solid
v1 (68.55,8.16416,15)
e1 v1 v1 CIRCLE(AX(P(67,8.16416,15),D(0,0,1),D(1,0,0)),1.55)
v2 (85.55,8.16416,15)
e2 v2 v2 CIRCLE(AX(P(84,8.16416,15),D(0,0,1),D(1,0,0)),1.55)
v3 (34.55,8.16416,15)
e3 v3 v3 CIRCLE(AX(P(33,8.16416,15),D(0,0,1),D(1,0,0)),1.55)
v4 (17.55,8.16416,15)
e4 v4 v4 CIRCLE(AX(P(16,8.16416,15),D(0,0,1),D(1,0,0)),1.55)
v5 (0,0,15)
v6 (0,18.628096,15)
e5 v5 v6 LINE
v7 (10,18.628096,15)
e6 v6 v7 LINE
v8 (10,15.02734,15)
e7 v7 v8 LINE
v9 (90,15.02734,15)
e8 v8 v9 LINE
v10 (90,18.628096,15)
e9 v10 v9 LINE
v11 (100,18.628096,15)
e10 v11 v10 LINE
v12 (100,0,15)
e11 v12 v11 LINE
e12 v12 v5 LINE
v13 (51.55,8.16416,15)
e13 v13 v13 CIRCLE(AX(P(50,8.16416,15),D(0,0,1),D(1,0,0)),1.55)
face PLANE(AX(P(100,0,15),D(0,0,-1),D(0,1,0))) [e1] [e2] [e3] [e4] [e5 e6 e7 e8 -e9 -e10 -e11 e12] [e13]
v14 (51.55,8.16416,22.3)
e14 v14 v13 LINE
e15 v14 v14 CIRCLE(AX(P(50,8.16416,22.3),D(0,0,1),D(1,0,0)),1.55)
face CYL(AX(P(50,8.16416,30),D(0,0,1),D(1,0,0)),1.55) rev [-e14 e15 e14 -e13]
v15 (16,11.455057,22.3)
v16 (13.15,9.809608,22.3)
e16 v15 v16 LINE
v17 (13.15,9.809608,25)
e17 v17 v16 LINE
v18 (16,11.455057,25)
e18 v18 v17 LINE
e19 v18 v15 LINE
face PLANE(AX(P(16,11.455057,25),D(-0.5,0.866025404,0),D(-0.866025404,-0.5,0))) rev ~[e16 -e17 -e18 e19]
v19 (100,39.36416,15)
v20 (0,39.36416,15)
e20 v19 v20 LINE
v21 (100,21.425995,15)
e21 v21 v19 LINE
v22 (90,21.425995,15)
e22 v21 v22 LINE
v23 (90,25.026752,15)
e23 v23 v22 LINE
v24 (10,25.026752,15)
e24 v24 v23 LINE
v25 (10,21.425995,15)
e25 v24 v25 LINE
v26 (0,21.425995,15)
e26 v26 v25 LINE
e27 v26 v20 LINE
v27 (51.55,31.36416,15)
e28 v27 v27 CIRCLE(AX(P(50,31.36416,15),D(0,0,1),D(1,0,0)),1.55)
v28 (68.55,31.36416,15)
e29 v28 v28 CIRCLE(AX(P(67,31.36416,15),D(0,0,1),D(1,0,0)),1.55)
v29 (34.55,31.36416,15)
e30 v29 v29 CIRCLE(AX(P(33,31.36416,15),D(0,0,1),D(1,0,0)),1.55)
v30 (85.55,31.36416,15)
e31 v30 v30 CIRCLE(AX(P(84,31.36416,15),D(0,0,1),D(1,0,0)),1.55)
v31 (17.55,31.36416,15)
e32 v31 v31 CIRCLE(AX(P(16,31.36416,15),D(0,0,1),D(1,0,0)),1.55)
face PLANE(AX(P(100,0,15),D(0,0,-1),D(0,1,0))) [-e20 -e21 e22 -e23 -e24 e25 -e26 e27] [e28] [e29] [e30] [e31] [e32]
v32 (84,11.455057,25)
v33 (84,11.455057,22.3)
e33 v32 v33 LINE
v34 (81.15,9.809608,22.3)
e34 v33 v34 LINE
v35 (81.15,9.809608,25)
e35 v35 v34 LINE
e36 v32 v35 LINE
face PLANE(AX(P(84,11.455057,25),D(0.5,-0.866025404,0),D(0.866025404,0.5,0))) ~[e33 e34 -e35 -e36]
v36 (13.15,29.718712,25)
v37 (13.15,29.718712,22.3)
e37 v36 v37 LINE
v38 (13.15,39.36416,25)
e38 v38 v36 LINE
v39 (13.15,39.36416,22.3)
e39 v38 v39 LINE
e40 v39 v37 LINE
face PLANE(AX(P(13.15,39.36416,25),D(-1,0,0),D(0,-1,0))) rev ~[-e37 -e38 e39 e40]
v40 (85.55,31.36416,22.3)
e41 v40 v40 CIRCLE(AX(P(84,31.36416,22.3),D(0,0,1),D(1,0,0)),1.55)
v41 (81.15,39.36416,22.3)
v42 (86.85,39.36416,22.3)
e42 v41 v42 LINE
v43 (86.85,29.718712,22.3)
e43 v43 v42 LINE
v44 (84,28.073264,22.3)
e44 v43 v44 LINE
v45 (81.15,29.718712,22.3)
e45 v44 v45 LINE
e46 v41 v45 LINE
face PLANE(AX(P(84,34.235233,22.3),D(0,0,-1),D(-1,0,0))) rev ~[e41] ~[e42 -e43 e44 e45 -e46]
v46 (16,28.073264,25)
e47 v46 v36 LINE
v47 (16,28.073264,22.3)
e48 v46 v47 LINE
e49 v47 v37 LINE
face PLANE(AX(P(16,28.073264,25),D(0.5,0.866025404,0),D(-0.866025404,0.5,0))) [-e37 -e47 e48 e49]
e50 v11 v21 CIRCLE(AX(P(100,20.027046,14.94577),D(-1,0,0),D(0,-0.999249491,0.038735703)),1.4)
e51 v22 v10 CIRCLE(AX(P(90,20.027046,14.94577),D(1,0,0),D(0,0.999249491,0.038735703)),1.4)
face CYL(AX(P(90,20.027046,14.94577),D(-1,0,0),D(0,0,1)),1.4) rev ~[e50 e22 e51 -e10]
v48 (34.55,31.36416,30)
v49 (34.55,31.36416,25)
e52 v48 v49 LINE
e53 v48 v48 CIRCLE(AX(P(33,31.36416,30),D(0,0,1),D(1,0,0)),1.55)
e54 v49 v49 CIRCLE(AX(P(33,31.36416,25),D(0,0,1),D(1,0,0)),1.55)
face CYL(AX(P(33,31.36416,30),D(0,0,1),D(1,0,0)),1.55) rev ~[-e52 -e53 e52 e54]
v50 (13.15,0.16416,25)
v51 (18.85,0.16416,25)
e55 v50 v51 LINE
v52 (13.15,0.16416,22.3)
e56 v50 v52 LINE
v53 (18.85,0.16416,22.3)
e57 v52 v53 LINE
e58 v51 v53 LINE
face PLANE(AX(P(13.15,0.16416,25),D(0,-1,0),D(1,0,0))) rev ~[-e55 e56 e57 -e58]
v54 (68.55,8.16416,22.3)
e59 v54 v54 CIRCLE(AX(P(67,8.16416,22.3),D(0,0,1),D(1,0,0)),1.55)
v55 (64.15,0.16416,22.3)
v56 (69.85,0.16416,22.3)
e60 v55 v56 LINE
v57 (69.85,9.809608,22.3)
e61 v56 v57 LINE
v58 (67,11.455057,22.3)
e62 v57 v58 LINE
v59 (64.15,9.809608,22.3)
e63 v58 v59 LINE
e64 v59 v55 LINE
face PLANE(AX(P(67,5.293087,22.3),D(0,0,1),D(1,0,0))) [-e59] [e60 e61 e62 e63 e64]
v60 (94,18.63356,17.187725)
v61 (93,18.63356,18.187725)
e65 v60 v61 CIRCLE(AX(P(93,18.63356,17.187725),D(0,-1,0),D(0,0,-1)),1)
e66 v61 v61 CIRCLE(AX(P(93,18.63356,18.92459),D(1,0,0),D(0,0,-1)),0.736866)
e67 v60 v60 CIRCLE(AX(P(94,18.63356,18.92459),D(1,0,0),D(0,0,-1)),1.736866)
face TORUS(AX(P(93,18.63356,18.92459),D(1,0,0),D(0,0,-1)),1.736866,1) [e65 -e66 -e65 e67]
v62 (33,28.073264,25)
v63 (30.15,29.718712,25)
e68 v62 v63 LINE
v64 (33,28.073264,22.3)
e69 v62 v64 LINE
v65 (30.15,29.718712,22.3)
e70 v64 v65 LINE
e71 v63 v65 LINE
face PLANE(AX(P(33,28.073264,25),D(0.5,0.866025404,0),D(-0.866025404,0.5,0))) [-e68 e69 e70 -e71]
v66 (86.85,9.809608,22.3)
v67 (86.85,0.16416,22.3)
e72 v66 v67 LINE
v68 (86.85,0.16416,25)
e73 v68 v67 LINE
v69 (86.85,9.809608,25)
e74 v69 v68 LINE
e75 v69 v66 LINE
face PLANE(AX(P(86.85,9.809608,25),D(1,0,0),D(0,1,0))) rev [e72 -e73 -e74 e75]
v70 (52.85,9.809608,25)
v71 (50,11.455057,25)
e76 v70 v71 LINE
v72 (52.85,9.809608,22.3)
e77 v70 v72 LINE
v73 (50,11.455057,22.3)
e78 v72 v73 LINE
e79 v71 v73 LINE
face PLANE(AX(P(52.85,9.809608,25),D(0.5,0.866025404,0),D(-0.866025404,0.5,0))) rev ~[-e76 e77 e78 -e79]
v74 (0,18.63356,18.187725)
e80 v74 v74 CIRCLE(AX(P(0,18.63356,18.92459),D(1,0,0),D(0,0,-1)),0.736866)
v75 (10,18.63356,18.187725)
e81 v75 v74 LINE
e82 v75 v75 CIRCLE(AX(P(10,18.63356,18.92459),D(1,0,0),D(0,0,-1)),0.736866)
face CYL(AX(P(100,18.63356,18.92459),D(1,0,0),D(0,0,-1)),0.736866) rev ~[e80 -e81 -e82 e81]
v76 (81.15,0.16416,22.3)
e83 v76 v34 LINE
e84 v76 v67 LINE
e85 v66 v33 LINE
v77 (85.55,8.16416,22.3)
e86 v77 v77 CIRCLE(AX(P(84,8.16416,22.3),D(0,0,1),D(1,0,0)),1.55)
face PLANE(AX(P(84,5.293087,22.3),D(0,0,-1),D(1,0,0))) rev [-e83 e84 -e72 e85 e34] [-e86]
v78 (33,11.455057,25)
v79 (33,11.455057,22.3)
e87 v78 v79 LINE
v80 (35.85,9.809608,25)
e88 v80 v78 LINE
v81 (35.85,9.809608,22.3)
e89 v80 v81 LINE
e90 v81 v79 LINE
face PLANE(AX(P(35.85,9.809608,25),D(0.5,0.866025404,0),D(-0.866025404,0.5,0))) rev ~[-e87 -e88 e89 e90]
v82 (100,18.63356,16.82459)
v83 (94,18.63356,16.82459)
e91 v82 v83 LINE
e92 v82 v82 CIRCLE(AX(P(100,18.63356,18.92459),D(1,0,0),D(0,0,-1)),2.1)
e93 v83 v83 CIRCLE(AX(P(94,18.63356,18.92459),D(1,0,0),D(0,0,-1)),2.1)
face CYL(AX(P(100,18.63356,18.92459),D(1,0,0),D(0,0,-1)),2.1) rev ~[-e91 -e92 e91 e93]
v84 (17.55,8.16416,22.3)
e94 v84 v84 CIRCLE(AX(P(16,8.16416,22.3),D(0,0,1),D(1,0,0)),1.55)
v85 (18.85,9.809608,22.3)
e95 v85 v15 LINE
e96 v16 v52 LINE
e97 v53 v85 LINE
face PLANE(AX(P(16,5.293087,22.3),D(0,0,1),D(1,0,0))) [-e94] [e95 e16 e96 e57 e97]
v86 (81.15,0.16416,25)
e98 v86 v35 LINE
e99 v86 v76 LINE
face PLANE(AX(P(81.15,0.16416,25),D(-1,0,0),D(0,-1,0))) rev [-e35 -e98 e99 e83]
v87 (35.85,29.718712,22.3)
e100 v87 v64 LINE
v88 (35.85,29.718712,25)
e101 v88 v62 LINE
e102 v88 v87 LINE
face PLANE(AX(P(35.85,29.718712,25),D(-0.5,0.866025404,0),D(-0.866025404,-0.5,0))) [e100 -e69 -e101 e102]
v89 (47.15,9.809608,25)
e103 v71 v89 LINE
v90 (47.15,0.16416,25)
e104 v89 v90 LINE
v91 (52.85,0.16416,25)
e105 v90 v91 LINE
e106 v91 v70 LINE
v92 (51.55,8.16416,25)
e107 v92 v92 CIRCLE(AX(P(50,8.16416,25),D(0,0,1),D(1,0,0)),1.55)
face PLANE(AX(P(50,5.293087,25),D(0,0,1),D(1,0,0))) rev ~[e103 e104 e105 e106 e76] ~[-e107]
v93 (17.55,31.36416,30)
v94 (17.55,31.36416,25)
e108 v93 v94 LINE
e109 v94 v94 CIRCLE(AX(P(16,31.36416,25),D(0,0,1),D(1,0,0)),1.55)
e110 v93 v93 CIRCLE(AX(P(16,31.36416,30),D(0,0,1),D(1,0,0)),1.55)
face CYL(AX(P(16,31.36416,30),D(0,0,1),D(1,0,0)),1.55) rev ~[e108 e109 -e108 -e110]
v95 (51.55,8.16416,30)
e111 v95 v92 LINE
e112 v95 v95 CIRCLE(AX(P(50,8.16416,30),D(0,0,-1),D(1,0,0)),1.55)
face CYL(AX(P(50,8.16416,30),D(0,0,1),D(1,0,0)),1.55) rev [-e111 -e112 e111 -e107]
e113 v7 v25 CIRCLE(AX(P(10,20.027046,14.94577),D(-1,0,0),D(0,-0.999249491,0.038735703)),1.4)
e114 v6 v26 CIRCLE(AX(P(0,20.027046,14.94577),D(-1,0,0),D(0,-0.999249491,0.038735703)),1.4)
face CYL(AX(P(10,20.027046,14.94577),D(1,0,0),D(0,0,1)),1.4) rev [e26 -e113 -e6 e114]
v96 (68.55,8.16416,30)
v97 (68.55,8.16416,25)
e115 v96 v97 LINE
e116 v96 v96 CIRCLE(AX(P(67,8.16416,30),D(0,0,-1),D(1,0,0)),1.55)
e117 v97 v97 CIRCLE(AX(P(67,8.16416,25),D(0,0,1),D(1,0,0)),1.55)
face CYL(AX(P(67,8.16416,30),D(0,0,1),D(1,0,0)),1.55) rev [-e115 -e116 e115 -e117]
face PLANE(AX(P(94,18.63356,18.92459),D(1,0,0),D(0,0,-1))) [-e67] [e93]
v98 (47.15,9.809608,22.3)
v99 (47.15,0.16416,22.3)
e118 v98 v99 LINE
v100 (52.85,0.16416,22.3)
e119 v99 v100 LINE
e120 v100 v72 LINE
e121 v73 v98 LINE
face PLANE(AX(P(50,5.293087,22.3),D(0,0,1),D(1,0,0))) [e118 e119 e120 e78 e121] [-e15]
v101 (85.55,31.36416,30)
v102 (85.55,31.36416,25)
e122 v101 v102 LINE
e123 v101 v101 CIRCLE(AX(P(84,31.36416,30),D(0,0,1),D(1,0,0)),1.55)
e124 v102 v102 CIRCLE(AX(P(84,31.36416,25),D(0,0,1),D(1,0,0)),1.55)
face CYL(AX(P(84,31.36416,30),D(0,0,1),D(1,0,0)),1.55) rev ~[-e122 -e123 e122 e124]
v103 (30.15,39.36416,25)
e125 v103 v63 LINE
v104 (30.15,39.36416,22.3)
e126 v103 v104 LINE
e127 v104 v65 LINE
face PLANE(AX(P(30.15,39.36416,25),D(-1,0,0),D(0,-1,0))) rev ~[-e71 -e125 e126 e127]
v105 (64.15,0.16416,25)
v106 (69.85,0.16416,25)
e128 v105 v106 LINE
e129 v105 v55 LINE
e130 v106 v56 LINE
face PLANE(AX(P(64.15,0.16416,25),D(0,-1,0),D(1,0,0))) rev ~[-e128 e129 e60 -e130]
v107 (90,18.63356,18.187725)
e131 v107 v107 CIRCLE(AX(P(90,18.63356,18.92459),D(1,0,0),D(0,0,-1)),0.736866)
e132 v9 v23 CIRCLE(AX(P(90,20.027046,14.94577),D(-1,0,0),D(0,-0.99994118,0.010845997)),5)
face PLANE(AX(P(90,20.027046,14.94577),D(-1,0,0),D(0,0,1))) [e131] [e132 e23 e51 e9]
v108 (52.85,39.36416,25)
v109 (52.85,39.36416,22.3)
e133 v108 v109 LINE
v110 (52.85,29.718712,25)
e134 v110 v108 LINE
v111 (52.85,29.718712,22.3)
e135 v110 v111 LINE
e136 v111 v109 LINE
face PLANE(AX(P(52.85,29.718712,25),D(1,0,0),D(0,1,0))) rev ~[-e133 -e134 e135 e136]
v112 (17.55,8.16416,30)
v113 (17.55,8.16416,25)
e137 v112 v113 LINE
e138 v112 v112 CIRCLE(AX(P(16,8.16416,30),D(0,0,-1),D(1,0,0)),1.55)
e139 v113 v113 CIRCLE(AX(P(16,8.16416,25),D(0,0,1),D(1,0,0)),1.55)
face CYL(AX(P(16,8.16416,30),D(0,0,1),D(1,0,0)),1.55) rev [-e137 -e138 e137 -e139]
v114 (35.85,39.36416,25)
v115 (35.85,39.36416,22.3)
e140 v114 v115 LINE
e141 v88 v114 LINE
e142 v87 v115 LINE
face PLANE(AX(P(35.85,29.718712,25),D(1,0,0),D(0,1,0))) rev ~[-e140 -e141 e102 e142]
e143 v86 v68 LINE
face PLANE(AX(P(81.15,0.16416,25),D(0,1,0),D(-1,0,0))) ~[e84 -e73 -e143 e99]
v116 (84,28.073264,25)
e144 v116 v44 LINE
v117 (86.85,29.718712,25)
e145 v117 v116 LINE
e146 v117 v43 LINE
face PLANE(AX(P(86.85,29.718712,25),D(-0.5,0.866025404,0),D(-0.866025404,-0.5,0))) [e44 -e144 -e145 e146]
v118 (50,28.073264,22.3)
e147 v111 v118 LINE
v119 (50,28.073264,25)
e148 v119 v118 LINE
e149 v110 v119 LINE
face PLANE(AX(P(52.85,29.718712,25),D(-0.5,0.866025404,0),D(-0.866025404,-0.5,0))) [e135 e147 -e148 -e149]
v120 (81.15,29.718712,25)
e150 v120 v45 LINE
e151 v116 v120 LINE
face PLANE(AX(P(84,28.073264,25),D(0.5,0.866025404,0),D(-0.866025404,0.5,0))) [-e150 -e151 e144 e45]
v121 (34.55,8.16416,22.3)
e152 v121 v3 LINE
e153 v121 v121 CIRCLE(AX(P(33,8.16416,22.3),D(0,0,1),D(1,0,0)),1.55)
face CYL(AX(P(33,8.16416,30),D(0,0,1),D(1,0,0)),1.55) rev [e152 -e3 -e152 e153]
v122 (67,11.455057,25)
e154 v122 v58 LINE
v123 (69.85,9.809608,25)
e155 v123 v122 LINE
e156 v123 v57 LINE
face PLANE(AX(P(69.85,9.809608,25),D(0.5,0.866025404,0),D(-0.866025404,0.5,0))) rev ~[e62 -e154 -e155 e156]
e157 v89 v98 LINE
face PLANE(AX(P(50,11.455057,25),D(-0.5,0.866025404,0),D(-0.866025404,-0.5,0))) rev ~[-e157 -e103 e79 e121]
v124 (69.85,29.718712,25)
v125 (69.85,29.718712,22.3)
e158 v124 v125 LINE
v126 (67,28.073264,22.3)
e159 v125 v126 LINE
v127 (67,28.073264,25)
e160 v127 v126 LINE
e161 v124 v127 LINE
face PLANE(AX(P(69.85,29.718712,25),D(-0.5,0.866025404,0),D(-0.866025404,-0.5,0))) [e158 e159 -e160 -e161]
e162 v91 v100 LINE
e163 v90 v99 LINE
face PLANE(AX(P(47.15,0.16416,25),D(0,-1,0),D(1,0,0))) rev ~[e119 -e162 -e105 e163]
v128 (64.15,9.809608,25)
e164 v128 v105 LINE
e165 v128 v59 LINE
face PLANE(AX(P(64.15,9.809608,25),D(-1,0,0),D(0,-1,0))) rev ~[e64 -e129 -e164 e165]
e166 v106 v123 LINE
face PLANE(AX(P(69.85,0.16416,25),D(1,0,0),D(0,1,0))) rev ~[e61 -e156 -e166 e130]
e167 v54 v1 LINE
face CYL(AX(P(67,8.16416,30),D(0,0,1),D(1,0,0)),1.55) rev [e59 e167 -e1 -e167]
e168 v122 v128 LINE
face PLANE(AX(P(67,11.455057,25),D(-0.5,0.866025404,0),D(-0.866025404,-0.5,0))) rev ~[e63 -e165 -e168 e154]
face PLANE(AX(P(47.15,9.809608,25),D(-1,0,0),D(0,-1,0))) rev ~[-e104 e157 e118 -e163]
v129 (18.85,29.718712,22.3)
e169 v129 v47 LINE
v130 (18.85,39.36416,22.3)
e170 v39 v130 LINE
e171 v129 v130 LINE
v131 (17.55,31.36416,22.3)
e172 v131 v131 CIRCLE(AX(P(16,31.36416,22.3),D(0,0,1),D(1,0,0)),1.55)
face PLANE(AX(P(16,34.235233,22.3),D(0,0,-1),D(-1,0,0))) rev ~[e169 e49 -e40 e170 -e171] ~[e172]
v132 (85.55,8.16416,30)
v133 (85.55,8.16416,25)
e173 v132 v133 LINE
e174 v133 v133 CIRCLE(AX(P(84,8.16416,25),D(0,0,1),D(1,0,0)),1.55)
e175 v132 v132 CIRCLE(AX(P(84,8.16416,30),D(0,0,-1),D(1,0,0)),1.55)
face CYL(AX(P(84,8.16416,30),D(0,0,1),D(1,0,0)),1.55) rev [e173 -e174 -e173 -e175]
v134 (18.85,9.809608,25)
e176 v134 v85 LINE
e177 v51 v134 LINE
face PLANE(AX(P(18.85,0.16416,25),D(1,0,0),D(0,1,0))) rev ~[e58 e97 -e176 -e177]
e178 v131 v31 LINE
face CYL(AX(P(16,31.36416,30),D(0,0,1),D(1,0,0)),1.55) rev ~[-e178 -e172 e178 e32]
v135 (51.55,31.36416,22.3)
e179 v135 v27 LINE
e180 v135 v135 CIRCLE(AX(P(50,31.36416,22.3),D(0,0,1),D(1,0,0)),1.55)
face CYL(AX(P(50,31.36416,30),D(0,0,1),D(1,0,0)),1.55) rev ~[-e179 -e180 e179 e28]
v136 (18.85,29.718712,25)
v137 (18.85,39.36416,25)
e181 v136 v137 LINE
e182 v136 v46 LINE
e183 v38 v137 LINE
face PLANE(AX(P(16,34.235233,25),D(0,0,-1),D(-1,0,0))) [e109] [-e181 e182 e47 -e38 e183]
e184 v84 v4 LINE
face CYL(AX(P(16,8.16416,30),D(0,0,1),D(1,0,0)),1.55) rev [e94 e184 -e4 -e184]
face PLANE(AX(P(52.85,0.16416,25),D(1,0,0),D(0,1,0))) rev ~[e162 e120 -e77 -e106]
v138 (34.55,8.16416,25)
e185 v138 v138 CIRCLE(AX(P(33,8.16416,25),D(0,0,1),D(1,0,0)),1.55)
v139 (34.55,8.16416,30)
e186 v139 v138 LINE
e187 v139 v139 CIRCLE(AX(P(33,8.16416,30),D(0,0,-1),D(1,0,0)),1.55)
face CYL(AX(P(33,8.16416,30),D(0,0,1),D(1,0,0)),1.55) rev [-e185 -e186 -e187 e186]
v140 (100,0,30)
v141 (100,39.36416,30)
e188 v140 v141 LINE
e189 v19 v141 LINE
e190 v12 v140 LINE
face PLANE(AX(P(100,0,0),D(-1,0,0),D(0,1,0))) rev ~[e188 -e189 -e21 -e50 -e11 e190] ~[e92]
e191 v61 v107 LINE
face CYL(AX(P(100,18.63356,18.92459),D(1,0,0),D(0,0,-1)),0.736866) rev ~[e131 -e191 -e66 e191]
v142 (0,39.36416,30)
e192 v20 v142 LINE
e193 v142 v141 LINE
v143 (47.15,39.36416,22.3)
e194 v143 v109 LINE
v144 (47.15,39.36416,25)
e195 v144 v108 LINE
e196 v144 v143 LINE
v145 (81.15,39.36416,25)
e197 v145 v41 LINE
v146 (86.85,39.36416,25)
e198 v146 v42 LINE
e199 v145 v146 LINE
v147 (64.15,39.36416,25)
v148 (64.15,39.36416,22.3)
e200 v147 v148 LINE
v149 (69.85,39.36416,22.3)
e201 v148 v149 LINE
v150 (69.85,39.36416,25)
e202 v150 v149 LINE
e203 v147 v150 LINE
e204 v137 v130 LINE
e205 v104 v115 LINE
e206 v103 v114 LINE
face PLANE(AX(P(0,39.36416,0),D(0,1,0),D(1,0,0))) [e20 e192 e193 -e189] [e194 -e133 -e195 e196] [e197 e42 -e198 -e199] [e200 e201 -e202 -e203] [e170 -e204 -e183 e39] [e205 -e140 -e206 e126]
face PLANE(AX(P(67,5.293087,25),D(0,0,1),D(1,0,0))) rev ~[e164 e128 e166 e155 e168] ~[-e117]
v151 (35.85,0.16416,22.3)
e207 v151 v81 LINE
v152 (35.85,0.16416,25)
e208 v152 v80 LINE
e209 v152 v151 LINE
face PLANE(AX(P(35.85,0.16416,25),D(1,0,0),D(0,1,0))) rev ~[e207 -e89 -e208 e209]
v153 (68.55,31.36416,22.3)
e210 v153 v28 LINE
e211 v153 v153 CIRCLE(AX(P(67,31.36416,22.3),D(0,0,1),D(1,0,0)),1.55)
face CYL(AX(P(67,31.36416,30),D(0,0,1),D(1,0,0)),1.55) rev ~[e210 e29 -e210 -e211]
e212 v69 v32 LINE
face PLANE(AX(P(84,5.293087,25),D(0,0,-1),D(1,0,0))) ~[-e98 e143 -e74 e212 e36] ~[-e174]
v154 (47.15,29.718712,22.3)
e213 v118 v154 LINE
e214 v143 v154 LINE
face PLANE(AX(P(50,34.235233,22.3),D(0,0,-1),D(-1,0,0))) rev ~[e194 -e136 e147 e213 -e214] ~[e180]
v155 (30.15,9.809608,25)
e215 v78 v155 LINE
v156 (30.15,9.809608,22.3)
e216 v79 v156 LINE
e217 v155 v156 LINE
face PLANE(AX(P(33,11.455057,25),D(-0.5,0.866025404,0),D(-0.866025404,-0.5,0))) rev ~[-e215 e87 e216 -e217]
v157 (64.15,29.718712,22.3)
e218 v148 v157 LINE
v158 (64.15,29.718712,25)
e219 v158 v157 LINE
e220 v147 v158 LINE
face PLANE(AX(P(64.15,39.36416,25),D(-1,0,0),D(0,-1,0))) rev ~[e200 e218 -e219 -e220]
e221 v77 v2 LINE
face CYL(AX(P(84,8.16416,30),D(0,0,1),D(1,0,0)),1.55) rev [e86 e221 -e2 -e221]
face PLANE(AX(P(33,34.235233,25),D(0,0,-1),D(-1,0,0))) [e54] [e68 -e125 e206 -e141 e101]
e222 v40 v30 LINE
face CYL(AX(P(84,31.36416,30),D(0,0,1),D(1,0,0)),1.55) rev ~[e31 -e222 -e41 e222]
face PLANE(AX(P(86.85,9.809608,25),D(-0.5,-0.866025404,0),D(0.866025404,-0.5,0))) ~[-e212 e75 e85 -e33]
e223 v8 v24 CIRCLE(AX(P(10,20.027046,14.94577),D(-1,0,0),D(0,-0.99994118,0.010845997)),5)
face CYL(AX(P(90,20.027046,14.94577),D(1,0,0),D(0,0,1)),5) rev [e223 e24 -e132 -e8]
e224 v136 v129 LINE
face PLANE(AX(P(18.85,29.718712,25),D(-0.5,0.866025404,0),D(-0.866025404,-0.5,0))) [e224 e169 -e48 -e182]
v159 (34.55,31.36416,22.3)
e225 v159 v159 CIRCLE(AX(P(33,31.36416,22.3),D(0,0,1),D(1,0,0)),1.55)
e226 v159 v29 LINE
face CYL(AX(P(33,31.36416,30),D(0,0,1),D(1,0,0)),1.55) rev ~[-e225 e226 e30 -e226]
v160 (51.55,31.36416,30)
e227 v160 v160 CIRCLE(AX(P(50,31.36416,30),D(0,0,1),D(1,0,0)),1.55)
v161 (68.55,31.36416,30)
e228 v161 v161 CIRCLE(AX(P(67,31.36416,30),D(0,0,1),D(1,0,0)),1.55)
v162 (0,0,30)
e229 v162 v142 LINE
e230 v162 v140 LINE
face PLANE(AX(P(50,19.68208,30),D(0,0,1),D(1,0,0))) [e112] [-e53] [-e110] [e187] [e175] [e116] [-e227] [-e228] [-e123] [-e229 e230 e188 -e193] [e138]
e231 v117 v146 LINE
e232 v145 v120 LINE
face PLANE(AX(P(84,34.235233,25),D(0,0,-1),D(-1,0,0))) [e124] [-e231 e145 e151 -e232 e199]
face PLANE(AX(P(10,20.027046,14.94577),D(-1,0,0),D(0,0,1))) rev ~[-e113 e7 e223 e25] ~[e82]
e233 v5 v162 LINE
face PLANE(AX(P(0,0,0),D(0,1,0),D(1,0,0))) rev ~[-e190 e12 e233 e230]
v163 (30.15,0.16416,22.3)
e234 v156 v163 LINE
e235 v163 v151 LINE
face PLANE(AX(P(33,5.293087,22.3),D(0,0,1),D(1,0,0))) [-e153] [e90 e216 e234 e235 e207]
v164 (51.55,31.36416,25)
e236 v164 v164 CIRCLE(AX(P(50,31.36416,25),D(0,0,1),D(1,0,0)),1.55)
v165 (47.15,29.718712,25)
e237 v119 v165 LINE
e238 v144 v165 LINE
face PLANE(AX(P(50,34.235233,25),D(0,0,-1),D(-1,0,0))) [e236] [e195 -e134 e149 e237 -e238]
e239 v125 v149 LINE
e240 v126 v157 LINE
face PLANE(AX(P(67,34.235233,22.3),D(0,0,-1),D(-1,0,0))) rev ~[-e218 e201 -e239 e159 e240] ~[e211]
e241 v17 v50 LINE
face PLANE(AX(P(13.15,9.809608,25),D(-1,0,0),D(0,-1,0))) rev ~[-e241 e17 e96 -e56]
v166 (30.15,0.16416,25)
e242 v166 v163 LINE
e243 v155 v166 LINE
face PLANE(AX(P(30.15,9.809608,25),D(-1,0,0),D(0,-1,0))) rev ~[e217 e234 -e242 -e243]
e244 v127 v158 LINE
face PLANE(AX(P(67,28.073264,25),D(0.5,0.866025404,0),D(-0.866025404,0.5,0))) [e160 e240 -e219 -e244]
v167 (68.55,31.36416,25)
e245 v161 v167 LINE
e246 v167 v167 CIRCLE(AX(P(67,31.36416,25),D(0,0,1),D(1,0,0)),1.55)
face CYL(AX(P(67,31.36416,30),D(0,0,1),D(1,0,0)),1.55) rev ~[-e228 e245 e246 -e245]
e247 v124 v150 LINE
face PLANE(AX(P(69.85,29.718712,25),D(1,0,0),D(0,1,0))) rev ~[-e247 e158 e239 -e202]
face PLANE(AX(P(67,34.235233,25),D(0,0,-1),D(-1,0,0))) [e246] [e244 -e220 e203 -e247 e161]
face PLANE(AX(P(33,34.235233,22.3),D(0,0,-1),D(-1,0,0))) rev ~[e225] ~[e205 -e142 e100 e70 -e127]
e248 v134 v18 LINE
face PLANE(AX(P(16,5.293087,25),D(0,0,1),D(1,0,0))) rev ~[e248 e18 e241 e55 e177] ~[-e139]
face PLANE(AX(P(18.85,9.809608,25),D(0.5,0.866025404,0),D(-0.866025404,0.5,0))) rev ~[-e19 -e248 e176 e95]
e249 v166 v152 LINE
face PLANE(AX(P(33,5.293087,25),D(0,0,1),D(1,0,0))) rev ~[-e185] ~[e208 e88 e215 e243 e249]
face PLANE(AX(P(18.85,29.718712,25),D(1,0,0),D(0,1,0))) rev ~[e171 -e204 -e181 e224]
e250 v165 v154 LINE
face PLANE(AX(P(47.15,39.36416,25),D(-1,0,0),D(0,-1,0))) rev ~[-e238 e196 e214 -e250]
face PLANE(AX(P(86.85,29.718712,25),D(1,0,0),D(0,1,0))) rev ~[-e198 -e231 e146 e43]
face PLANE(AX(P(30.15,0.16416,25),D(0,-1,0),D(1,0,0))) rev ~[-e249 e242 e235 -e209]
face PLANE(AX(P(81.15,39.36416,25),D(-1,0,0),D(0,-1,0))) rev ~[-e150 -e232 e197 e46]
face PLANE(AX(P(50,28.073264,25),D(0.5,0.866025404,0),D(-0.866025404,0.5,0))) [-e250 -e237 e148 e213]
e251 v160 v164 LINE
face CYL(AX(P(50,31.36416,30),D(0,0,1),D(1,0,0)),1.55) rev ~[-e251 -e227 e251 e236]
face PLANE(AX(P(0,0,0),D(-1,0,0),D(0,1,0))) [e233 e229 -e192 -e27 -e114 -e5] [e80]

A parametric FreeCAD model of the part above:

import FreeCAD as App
import Part
import Sketcher
from FreeCAD import Vector
Q = App.Units.Quantity


def edges_at(feature, points):
    """Names of the edges that pass closest to the given points."""
    edges = feature.Shape.Edges
    near = lambda p: min(range(len(edges)), key=lambda i: edges[i].distToShape(Part.Vertex(*p))[0])
    return sorted({f"Edge{near(p) + 1}" for p in points})


def add_polygon(sketch, points):
    """Adds a closed chain of lines whose ends are joined by coincident constraints."""
    first, n = sketch.GeometryCount, len(points)
    for a, b in zip(points, points[1:] + points[:1]):
        sketch.addGeometry(Part.LineSegment(App.Vector(*a, 0), App.Vector(*b, 0)), False)
    for i in range(n):
        sketch.addConstraint(Sketcher.Constraint("Coincident", first + i, 2, first + (i + 1) % n, 1))

doc = App.newDocument("Part")
body = doc.addObject("PartDesign::Body", "Body")

# Sketch on XY plane
sketch1 = body.newObject("Sketcher::SketchObject", "Sketch")
sketch1.AttachmentSupport = (doc.getObject("XY_Plane"), [""])
sketch1.MapMode = "FlatFace"
add_polygon(sketch1, [(0, 39), (0, 0), (100, 0), (100, 39)])  # lines 0-3
sketch1.addConstraint(Sketcher.Constraint("Vertical", 0))
sketch1.addConstraint(Sketcher.Constraint("Horizontal", 1))
sketch1.addConstraint(Sketcher.Constraint("Vertical", 2))
sketch1.addConstraint(Sketcher.Constraint("Horizontal", 3))
sketch1.addConstraint(Sketcher.Constraint("Coincident", 0, 2, -1, 1))
sketch1.addConstraint(Sketcher.Constraint("DistanceX", 1, 1, 1, 2, 100.0))
sketch1.addConstraint(Sketcher.Constraint("DistanceY", 0, 2, 0, 1, 39.36416))
pad1 = body.newObject("PartDesign::Pad", "Pad")
pad1.Profile = sketch1
pad1.Length = 30

# Sketch on YZ plane
sketch2 = body.newObject("Sketcher::SketchObject", "Sketch001")
sketch2.AttachmentSupport = (doc.getObject("YZ_Plane"), [""])
sketch2.MapMode = "FlatFace"
sketch2.AttachmentOffset = App.Placement(Vector(0, 0, 50), App.Rotation())
sketch2.addGeometry(Part.Circle(Vector(20, 15, 0), Vector(0, 0, 1), 5), False)
sketch2.addConstraint(Sketcher.Constraint("Diameter", 0, 10.0))
sketch2.addConstraint(Sketcher.Constraint("DistanceY", -1, 1, 0, 3, 14.94577))
sketch2.addConstraint(Sketcher.Constraint("DistanceX", -1, 1, 0, 3, 20.027046))
pocket1 = body.newObject("PartDesign::Pocket", "Pocket")
pocket1.Profile = sketch2
pocket1.Type = "TwoLengths"
pocket1.Length = 40
pocket1.Length2 = 40

# Sketch on YZ plane
sketch3 = body.newObject("Sketcher::SketchObject", "Sketch002")
sketch3.AttachmentSupport = (doc.getObject("YZ_Plane"), [""])
sketch3.MapMode = "FlatFace"
sketch3.AttachmentOffset = App.Placement(Vector(0, 0, 90), App.Rotation())
sketch3.addGeometry(Part.Circle(Vector(20, 14.9, 0), Vector(0, 0, 1), 1.4), False)
sketch3.addConstraint(Sketcher.Constraint("Diameter", 0, 2.8))
sketch3.addConstraint(Sketcher.Constraint("DistanceY", -1, 1, 0, 3, 14.94577))
sketch3.addConstraint(Sketcher.Constraint("DistanceX", -1, 1, 0, 3, 20.027046))
pocket2 = body.newObject("PartDesign::Pocket", "Pocket001")
pocket2.Profile = sketch3
pocket2.Type = "ThroughAll"
pocket2.Reversed = True
doc.recompute()

datumplane = body.newObject("PartDesign::Plane", "DatumPlane")
datumplane.AttachmentSupport = (doc.getObject("YZ_Plane"), [""])
datumplane.MapMode = "FlatFace"
datumplane.AttachmentOffset = App.Placement(Vector(0, 0, 50), App.Rotation())
mirrored = body.newObject("PartDesign::Mirrored", "Mirrored")
mirrored.Originals = [pocket2]
mirrored.MirrorPlane = (datumplane, [""])
body.Tip = mirrored

# Sketch on XY plane
sketch4 = body.newObject("Sketcher::SketchObject", "Sketch003")
sketch4.AttachmentSupport = (doc.getObject("XY_Plane"), [""])
sketch4.MapMode = "FlatFace"
sketch4.AttachmentOffset = App.Placement(Vector(0, 0, 30), App.Rotation())
sketch4.addGeometry(Part.Circle(Vector(16, 31.4, 0), Vector(0, 0, 1), 1.6), False)
sketch4.addGeometry(Part.Circle(Vector(33, 31.4, 0), Vector(0, 0, 1), 1.6), False)
sketch4.addGeometry(Part.Circle(Vector(50, 31.4, 0), Vector(0, 0, 1), 1.6), False)
sketch4.addGeometry(Part.Circle(Vector(67, 31.4, 0), Vector(0, 0, 1), 1.6), False)
sketch4.addGeometry(Part.Circle(Vector(84, 31.4, 0), Vector(0, 0, 1), 1.6), False)
sketch4.addConstraint(Sketcher.Constraint("Equal", 0, 1))
sketch4.addConstraint(Sketcher.Constraint("Equal", 1, 2))
sketch4.addConstraint(Sketcher.Constraint("Equal", 2, 3))
sketch4.addConstraint(Sketcher.Constraint("Equal", 3, 4))
sketch4.addConstraint(Sketcher.Constraint("Horizontal", 0, 3, 1, 3))
sketch4.addConstraint(Sketcher.Constraint("Horizontal", 1, 3, 2, 3))
sketch4.addConstraint(Sketcher.Constraint("Horizontal", 2, 3, 3, 3))
sketch4.addConstraint(Sketcher.Constraint("Horizontal", 3, 3, 4, 3))
sketch4.addConstraint(Sketcher.Constraint("Diameter", 0, 3.1))
sketch4.addConstraint(Sketcher.Constraint("DistanceX", -1, 1, 0, 3, 16.0))
sketch4.addConstraint(Sketcher.Constraint("DistanceX", -1, 1, 1, 3, 33.0))
sketch4.addConstraint(Sketcher.Constraint("DistanceX", -1, 1, 2, 3, 50.0))
sketch4.addConstraint(Sketcher.Constraint("DistanceX", -1, 1, 3, 3, 67.0))
sketch4.addConstraint(Sketcher.Constraint("DistanceX", -1, 1, 4, 3, 84.0))
sketch4.addConstraint(Sketcher.Constraint("DistanceY", -1, 1, 0, 3, 31.36416))
pocket3 = body.newObject("PartDesign::Pocket", "Pocket002")
pocket3.Profile = sketch4
pocket3.Type = "ThroughAll"

# Sketch on YZ plane
sketch5 = body.newObject("Sketcher::SketchObject", "Sketch004")
sketch5.AttachmentSupport = (doc.getObject("YZ_Plane"), [""])
sketch5.MapMode = "FlatFace"
sketch5.AttachmentOffset = App.Placement(Vector(0, 0, 100), App.Rotation())
sketch5.addGeometry(Part.Circle(Vector(18.6, 18.9, 0), Vector(0, 0, 1), 0.7), False)
sketch5.addConstraint(Sketcher.Constraint("Diameter", 0, 1.473731))
sketch5.addConstraint(Sketcher.Constraint("DistanceX", -1, 1, 0, 3, 18.63356))
sketch5.addConstraint(Sketcher.Constraint("DistanceY", -1, 1, 0, 3, 18.92459))
pocket4 = body.newObject("PartDesign::Pocket", "Pocket003")
pocket4.Profile = sketch5
pocket4.Type = "ThroughAll"

# Sketch on YZ plane
sketch6 = body.newObject("Sketcher::SketchObject", "Sketch005")
sketch6.AttachmentSupport = (doc.getObject("YZ_Plane"), [""])
sketch6.MapMode = "FlatFace"
sketch6.AttachmentOffset = App.Placement(Vector(0, 0, 100), App.Rotation())
sketch6.addGeometry(Part.Circle(Vector(18.6, 18.9, 0), Vector(0, 0, 1), 2.1), False)
sketch6.addConstraint(Sketcher.Constraint("Diameter", 0, 4.2))
sketch6.addConstraint(Sketcher.Constraint("DistanceX", -1, 1, 0, 3, 18.63356))
sketch6.addConstraint(Sketcher.Constraint("DistanceY", -1, 1, 0, 3, 18.92459))
pocket5 = body.newObject("PartDesign::Pocket", "Pocket004")
pocket5.Profile = sketch6
pocket5.Length = 6

# Sketch on YZ plane
sketch7 = body.newObject("Sketcher::SketchObject", "Sketch006")
sketch7.AttachmentSupport = (doc.getObject("YZ_Plane"), [""])
sketch7.MapMode = "FlatFace"
sketch7.addGeometry(Part.Circle(Vector(18.8, 10.9, 0), Vector(0, 0, 1), 0.8), False)
sketch7.addConstraint(Sketcher.Constraint("Diameter", 0, 1.5))
sketch7.addConstraint(Sketcher.Constraint("DistanceY", -1, 1, 0, 3, 10.864159))
sketch7.addConstraint(Sketcher.Constraint("DistanceX", -1, 1, 0, 3, 18.842583))
pocket6 = body.newObject("PartDesign::Pocket", "Pocket005")
pocket6.Profile = sketch7
pocket6.Length = 10
pocket6.Reversed = True
doc.recompute()

fillet = body.newObject("PartDesign::Fillet", "Fillet")
fillet.Base = (pocket6, edges_at(pocket6, [(94, 18.634, 19.661)]))
fillet.Radius = 1

# Sketch on XY plane
sketch8 = body.newObject("Sketcher::SketchObject", "Sketch007")
sketch8.AttachmentSupport = (doc.getObject("XY_Plane"), [""])
sketch8.MapMode = "FlatFace"
sketch8.addGeometry(Part.Circle(Vector(84, 31.4, 0), Vector(0, 0, 1), 2.9), False)
sketch8.addConstraint(Sketcher.Constraint("Diameter", 0, 5.7))
sketch8.addConstraint(Sketcher.Constraint("DistanceX", -1, 1, 0, 3, 84.0))
sketch8.addConstraint(Sketcher.Constraint("DistanceY", -1, 1, 0, 3, 31.36416))
pocket7 = body.newObject("PartDesign::Pocket", "Pocket006")
pocket7.Profile = sketch8
pocket7.Length = 10
pocket7.Reversed = True

# Sketch on XY plane
sketch9 = body.newObject("Sketcher::SketchObject", "Sketch008")
sketch9.AttachmentSupport = (doc.getObject("XY_Plane"), [""])
sketch9.MapMode = "FlatFace"
sketch9.AttachmentOffset = App.Placement(Vector(0, 0, 25), App.Rotation())
add_polygon(sketch9, [(81.2, 39.4), (81.2, 29.7), (84, 28.1), (86.8, 29.7), (86.8, 39.4)])  # lines 0-4
sketch9.addConstraint(Sketcher.Constraint("Vertical", 0))
sketch9.addConstraint(Sketcher.Constraint("Vertical", 3))
sketch9.addConstraint(Sketcher.Constraint("Horizontal", 4))
sketch9.addConstraint(Sketcher.Constraint("Horizontal", 0, 2, 2, 2))
sketch9.addConstraint(Sketcher.Constraint("Equal", 1, 2))
sketch9.addConstraint(Sketcher.Constraint("Angle", 1, Q("-30 deg")))
sketch9.addConstraint(Sketcher.Constraint("DistanceX", 4, 2, 4, 1, 5.7))
sketch9.addConstraint(Sketcher.Constraint("DistanceX", -1, 1, 1, 2, 84.0))
sketch9.addConstraint(Sketcher.Constraint("DistanceY", 0, 2, 0, 1, 9.645448))
sketch9.addConstraint(Sketcher.Constraint("DistanceY", -1, 1, 0, 2, 29.718712))
pocket8 = body.newObject("PartDesign::Pocket", "Pocket007")
pocket8.Profile = sketch9
pocket8.Length = 2.7
doc.recompute()

linearpattern = body.newObject("PartDesign::LinearPattern", "LinearPattern")
linearpattern.Originals = [pocket7, pocket8]
linearpattern.Direction = (doc.getObject("X_Axis"), [""])
linearpattern.Mode = "offset"
linearpattern.Offset = 17
linearpattern.Occurrences = 5
linearpattern.Reversed = True
body.Tip = linearpattern
doc.recompute()

datumplane2 = body.newObject("PartDesign::Plane", "DatumPlane001")
datumplane2.AttachmentSupport = (doc.getObject("XZ_Plane"), [""])
datumplane2.MapMode = "FlatFace"
datumplane2.AttachmentOffset = App.Placement(Vector(0, 0, -19.76416), App.Rotation())
mirrored2 = body.newObject("PartDesign::Mirrored", "Mirrored001")
mirrored2.Originals = [pocket7, pocket8]
mirrored2.MirrorPlane = (datumplane2, [""])
body.Tip = mirrored2

# Sketch on XY plane
sketch10 = body.newObject("Sketcher::SketchObject", "Sketch009")
sketch10.AttachmentSupport = (doc.getObject("XY_Plane"), [""])
sketch10.MapMode = "FlatFace"
sketch10.addGeometry(Part.Circle(Vector(67, 8.2, 0), Vector(0, 0, 1), 2.9), False)
sketch10.addConstraint(Sketcher.Constraint("Diameter", 0, 5.7))
sketch10.addConstraint(Sketcher.Constraint("DistanceX", -1, 1, 0, 3, 67.0))
sketch10.addConstraint(Sketcher.Constraint("DistanceY", -1, 1, 0, 3, 8.16416))
pocket9 = body.newObject("PartDesign::Pocket", "Pocket008")
pocket9.Profile = sketch10
pocket9.Length = 10
pocket9.Reversed = True

# Sketch on XY plane
sketch11 = body.newObject("Sketcher::SketchObject", "Sketch010")
sketch11.AttachmentSupport = (doc.getObject("XY_Plane"), [""])
sketch11.MapMode = "FlatFace"
sketch11.addGeometry(Part.Circle(Vector(50, 8.2, 0), Vector(0, 0, 1), 2.9), False)
sketch11.addConstraint(Sketcher.Constraint("Diameter", 0, 5.7))
sketch11.addConstraint(Sketcher.Constraint("DistanceX", -1, 1, 0, 3, 50.0))
sketch11.addConstraint(Sketcher.Constraint("DistanceY", -1, 1, 0, 3, 8.16416))
pocket10 = body.newObject("PartDesign::Pocket", "Pocket009")
pocket10.Profile = sketch11
pocket10.Length = 10
pocket10.Reversed = True

# Sketch on XY plane
sketch12 = body.newObject("Sketcher::SketchObject", "Sketch011")
sketch12.AttachmentSupport = (doc.getObject("XY_Plane"), [""])
sketch12.MapMode = "FlatFace"
sketch12.addGeometry(Part.Circle(Vector(33, 8.2, 0), Vector(0, 0, 1), 2.9), False)
sketch12.addConstraint(Sketcher.Constraint("Diameter", 0, 5.7))
sketch12.addConstraint(Sketcher.Constraint("DistanceX", -1, 1, 0, 3, 33.0))
sketch12.addConstraint(Sketcher.Constraint("DistanceY", -1, 1, 0, 3, 8.16416))
pocket11 = body.newObject("PartDesign::Pocket", "Pocket010")
pocket11.Profile = sketch12
pocket11.Length = 10
pocket11.Reversed = True

# Sketch on XY plane
sketch13 = body.newObject("Sketcher::SketchObject", "Sketch012")
sketch13.AttachmentSupport = (doc.getObject("XY_Plane"), [""])
sketch13.MapMode = "FlatFace"
sketch13.addGeometry(Part.Circle(Vector(16, 8.2, 0), Vector(0, 0, 1), 2.9), False)
sketch13.addConstraint(Sketcher.Constraint("Diameter", 0, 5.7))
sketch13.addConstraint(Sketcher.Constraint("DistanceX", -1, 1, 0, 3, 16.0))
sketch13.addConstraint(Sketcher.Constraint("DistanceY", -1, 1, 0, 3, 8.16416))
pocket12 = body.newObject("PartDesign::Pocket", "Pocket011")
pocket12.Profile = sketch13
pocket12.Length = 10
pocket12.Reversed = True

# Sketch on XY plane
sketch14 = body.newObject("Sketcher::SketchObject", "Sketch013")
sketch14.AttachmentSupport = (doc.getObject("XY_Plane"), [""])
sketch14.MapMode = "FlatFace"
sketch14.AttachmentOffset = App.Placement(Vector(0, 0, 25), App.Rotation())
add_polygon(sketch14, [(64.2, 0.2), (69.8, 0.2), (69.8, 9.8), (67, 11.5), (64.2, 9.8)])  # lines 0-4
sketch14.addConstraint(Sketcher.Constraint("Horizontal", 0))
sketch14.addConstraint(Sketcher.Constraint("Vertical", 1))
sketch14.addConstraint(Sketcher.Constraint("Vertical", 4))
sketch14.addConstraint(Sketcher.Constraint("Horizontal", 1, 2, 3, 2))
sketch14.addConstraint(Sketcher.Constraint("Equal", 2, 3))
sketch14.addConstraint(Sketcher.Constraint("Angle", 2, Q("150 deg")))
sketch14.addConstraint(Sketcher.Constraint("DistanceX", 0, 1, 0, 2, 5.7))
sketch14.addConstraint(Sketcher.Constraint("DistanceX", -1, 1, 2, 2, 67.0))
sketch14.addConstraint(Sketcher.Constraint("DistanceY", 1, 1, 1, 2, 9.645448))
sketch14.addConstraint(Sketcher.Constraint("DistanceY", -1, 1, 0, 2, 0.16416))
pocket13 = body.newObject("PartDesign::Pocket", "Pocket012")
pocket13.Profile = sketch14
pocket13.Length = 2.7

# Sketch on XY plane
sketch15 = body.newObject("Sketcher::SketchObject", "Sketch014")
sketch15.AttachmentSupport = (doc.getObject("XY_Plane"), [""])
sketch15.MapMode = "FlatFace"
sketch15.AttachmentOffset = App.Placement(Vector(0, 0, 25), App.Rotation())
add_polygon(sketch15, [(47.1, 0.2), (52.9, 0.2), (52.9, 9.8), (50, 11.5), (47.1, 9.8)])  # lines 0-4
sketch15.addConstraint(Sketcher.Constraint("Horizontal", 0))
sketch15.addConstraint(Sketcher.Constraint("Vertical", 1))
sketch15.addConstraint(Sketcher.Constraint("Vertical", 4))
sketch15.addConstraint(Sketcher.Constraint("Horizontal", 1, 2, 3, 2))
sketch15.addConstraint(Sketcher.Constraint("Equal", 2, 3))
sketch15.addConstraint(Sketcher.Constraint("Angle", 2, Q("150 deg")))
sketch15.addConstraint(Sketcher.Constraint("DistanceX", 0, 1, 0, 2, 5.7))
sketch15.addConstraint(Sketcher.Constraint("DistanceX", -1, 1, 2, 2, 50.0))
sketch15.addConstraint(Sketcher.Constraint("DistanceY", 1, 1, 1, 2, 9.645448))
sketch15.addConstraint(Sketcher.Constraint("DistanceY", -1, 1, 0, 2, 0.16416))
pocket14 = body.newObject("PartDesign::Pocket", "Pocket013")
pocket14.Profile = sketch15
pocket14.Length = 2.7

# Sketch on XY plane
sketch16 = body.newObject("Sketcher::SketchObject", "Sketch015")
sketch16.AttachmentSupport = (doc.getObject("XY_Plane"), [""])
sketch16.MapMode = "FlatFace"
sketch16.AttachmentOffset = App.Placement(Vector(0, 0, 25), App.Rotation())
add_polygon(sketch16, [(30.1, 0.2), (35.9, 0.2), (35.9, 9.8), (33, 11.5), (30.1, 9.8)])  # lines 0-4
sketch16.addConstraint(Sketcher.Constraint("Horizontal", 0))
sketch16.addConstraint(Sketcher.Constraint("Vertical", 1))
sketch16.addConstraint(Sketcher.Constraint("Vertical", 4))
sketch16.addConstraint(Sketcher.Constraint("Horizontal", 1, 2, 3, 2))
sketch16.addConstraint(Sketcher.Constraint("Equal", 2, 3))
sketch16.addConstraint(Sketcher.Constraint("Angle", 2, Q("150 deg")))
sketch16.addConstraint(Sketcher.Constraint("DistanceX", 0, 1, 0, 2, 5.7))
sketch16.addConstraint(Sketcher.Constraint("DistanceX", -1, 1, 2, 2, 33.0))
sketch16.addConstraint(Sketcher.Constraint("DistanceY", 1, 1, 1, 2, 9.645448))
sketch16.addConstraint(Sketcher.Constraint("DistanceY", -1, 1, 0, 2, 0.16416))
pocket15 = body.newObject("PartDesign::Pocket", "Pocket014")
pocket15.Profile = sketch16
pocket15.Length = 2.7

# Sketch on XY plane
sketch17 = body.newObject("Sketcher::SketchObject", "Sketch016")
sketch17.AttachmentSupport = (doc.getObject("XY_Plane"), [""])
sketch17.MapMode = "FlatFace"
sketch17.AttachmentOffset = App.Placement(Vector(0, 0, 25), App.Rotation())
add_polygon(sketch17, [(13.2, 0.2), (18.9, 0.2), (18.9, 9.8), (16, 11.5), (13.2, 9.8)])  # lines 0-4
sketch17.addConstraint(Sketcher.Constraint("Horizontal", 0))
sketch17.addConstraint(Sketcher.Constraint("Vertical", 1))
sketch17.addConstraint(Sketcher.Constraint("Vertical", 4))
sketch17.addConstraint(Sketcher.Constraint("Horizontal", 1, 2, 3, 2))
sketch17.addConstraint(Sketcher.Constraint("Equal", 2, 3))
sketch17.addConstraint(Sketcher.Constraint("Angle", 2, Q("150 deg")))
sketch17.addConstraint(Sketcher.Constraint("DistanceX", 0, 1, 0, 2, 5.7))
sketch17.addConstraint(Sketcher.Constraint("DistanceX", -1, 1, 2, 2, 16.0))
sketch17.addConstraint(Sketcher.Constraint("DistanceY", 1, 1, 1, 2, 9.645448))
sketch17.addConstraint(Sketcher.Constraint("DistanceY", -1, 1, 0, 2, 0.16416))
pocket16 = body.newObject("PartDesign::Pocket", "Pocket015")
pocket16.Profile = sketch17
pocket16.Length = 2.7
doc.recompute()

datumplane3 = body.newObject("PartDesign::Plane", "DatumPlane002")
datumplane3.AttachmentSupport = (doc.getObject("XZ_Plane"), [""])
datumplane3.MapMode = "FlatFace"
datumplane3.AttachmentOffset = App.Placement(Vector(0, 0, -19.76416), App.Rotation())
mirrored3 = body.newObject("PartDesign::Mirrored", "Mirrored002")
mirrored3.Originals = [pocket3]
mirrored3.MirrorPlane = (datumplane3, [""])
body.Tip = mirrored3

# Sketch on YZ plane
sketch18 = body.newObject("Sketcher::SketchObject", "Sketch017")
sketch18.AttachmentSupport = (doc.getObject("YZ_Plane"), [""])
sketch18.MapMode = "FlatFace"
sketch18.AttachmentOffset = App.Placement(Vector(0, 0, 100), App.Rotation())
add_polygon(sketch18, [(39, 15), (0, 15), (0, 0), (39, 0)])  # lines 0-3
sketch18.addConstraint(Sketcher.Constraint("Horizontal", 0))
sketch18.addConstraint(Sketcher.Constraint("Vertical", 1))
sketch18.addConstraint(Sketcher.Constraint("Horizontal", 2))
sketch18.addConstraint(Sketcher.Constraint("Vertical", 3))
sketch18.addConstraint(Sketcher.Constraint("Coincident", 1, 2, -1, 1))
sketch18.addConstraint(Sketcher.Constraint("DistanceY", 1, 2, 1, 1, 15.0))
sketch18.addConstraint(Sketcher.Constraint("DistanceX", 0, 2, 0, 1, 39.36416))
pocket17 = body.newObject("PartDesign::Pocket", "Pocket016")
pocket17.Profile = sketch18
pocket17.Length = 100

doc.recompute()
